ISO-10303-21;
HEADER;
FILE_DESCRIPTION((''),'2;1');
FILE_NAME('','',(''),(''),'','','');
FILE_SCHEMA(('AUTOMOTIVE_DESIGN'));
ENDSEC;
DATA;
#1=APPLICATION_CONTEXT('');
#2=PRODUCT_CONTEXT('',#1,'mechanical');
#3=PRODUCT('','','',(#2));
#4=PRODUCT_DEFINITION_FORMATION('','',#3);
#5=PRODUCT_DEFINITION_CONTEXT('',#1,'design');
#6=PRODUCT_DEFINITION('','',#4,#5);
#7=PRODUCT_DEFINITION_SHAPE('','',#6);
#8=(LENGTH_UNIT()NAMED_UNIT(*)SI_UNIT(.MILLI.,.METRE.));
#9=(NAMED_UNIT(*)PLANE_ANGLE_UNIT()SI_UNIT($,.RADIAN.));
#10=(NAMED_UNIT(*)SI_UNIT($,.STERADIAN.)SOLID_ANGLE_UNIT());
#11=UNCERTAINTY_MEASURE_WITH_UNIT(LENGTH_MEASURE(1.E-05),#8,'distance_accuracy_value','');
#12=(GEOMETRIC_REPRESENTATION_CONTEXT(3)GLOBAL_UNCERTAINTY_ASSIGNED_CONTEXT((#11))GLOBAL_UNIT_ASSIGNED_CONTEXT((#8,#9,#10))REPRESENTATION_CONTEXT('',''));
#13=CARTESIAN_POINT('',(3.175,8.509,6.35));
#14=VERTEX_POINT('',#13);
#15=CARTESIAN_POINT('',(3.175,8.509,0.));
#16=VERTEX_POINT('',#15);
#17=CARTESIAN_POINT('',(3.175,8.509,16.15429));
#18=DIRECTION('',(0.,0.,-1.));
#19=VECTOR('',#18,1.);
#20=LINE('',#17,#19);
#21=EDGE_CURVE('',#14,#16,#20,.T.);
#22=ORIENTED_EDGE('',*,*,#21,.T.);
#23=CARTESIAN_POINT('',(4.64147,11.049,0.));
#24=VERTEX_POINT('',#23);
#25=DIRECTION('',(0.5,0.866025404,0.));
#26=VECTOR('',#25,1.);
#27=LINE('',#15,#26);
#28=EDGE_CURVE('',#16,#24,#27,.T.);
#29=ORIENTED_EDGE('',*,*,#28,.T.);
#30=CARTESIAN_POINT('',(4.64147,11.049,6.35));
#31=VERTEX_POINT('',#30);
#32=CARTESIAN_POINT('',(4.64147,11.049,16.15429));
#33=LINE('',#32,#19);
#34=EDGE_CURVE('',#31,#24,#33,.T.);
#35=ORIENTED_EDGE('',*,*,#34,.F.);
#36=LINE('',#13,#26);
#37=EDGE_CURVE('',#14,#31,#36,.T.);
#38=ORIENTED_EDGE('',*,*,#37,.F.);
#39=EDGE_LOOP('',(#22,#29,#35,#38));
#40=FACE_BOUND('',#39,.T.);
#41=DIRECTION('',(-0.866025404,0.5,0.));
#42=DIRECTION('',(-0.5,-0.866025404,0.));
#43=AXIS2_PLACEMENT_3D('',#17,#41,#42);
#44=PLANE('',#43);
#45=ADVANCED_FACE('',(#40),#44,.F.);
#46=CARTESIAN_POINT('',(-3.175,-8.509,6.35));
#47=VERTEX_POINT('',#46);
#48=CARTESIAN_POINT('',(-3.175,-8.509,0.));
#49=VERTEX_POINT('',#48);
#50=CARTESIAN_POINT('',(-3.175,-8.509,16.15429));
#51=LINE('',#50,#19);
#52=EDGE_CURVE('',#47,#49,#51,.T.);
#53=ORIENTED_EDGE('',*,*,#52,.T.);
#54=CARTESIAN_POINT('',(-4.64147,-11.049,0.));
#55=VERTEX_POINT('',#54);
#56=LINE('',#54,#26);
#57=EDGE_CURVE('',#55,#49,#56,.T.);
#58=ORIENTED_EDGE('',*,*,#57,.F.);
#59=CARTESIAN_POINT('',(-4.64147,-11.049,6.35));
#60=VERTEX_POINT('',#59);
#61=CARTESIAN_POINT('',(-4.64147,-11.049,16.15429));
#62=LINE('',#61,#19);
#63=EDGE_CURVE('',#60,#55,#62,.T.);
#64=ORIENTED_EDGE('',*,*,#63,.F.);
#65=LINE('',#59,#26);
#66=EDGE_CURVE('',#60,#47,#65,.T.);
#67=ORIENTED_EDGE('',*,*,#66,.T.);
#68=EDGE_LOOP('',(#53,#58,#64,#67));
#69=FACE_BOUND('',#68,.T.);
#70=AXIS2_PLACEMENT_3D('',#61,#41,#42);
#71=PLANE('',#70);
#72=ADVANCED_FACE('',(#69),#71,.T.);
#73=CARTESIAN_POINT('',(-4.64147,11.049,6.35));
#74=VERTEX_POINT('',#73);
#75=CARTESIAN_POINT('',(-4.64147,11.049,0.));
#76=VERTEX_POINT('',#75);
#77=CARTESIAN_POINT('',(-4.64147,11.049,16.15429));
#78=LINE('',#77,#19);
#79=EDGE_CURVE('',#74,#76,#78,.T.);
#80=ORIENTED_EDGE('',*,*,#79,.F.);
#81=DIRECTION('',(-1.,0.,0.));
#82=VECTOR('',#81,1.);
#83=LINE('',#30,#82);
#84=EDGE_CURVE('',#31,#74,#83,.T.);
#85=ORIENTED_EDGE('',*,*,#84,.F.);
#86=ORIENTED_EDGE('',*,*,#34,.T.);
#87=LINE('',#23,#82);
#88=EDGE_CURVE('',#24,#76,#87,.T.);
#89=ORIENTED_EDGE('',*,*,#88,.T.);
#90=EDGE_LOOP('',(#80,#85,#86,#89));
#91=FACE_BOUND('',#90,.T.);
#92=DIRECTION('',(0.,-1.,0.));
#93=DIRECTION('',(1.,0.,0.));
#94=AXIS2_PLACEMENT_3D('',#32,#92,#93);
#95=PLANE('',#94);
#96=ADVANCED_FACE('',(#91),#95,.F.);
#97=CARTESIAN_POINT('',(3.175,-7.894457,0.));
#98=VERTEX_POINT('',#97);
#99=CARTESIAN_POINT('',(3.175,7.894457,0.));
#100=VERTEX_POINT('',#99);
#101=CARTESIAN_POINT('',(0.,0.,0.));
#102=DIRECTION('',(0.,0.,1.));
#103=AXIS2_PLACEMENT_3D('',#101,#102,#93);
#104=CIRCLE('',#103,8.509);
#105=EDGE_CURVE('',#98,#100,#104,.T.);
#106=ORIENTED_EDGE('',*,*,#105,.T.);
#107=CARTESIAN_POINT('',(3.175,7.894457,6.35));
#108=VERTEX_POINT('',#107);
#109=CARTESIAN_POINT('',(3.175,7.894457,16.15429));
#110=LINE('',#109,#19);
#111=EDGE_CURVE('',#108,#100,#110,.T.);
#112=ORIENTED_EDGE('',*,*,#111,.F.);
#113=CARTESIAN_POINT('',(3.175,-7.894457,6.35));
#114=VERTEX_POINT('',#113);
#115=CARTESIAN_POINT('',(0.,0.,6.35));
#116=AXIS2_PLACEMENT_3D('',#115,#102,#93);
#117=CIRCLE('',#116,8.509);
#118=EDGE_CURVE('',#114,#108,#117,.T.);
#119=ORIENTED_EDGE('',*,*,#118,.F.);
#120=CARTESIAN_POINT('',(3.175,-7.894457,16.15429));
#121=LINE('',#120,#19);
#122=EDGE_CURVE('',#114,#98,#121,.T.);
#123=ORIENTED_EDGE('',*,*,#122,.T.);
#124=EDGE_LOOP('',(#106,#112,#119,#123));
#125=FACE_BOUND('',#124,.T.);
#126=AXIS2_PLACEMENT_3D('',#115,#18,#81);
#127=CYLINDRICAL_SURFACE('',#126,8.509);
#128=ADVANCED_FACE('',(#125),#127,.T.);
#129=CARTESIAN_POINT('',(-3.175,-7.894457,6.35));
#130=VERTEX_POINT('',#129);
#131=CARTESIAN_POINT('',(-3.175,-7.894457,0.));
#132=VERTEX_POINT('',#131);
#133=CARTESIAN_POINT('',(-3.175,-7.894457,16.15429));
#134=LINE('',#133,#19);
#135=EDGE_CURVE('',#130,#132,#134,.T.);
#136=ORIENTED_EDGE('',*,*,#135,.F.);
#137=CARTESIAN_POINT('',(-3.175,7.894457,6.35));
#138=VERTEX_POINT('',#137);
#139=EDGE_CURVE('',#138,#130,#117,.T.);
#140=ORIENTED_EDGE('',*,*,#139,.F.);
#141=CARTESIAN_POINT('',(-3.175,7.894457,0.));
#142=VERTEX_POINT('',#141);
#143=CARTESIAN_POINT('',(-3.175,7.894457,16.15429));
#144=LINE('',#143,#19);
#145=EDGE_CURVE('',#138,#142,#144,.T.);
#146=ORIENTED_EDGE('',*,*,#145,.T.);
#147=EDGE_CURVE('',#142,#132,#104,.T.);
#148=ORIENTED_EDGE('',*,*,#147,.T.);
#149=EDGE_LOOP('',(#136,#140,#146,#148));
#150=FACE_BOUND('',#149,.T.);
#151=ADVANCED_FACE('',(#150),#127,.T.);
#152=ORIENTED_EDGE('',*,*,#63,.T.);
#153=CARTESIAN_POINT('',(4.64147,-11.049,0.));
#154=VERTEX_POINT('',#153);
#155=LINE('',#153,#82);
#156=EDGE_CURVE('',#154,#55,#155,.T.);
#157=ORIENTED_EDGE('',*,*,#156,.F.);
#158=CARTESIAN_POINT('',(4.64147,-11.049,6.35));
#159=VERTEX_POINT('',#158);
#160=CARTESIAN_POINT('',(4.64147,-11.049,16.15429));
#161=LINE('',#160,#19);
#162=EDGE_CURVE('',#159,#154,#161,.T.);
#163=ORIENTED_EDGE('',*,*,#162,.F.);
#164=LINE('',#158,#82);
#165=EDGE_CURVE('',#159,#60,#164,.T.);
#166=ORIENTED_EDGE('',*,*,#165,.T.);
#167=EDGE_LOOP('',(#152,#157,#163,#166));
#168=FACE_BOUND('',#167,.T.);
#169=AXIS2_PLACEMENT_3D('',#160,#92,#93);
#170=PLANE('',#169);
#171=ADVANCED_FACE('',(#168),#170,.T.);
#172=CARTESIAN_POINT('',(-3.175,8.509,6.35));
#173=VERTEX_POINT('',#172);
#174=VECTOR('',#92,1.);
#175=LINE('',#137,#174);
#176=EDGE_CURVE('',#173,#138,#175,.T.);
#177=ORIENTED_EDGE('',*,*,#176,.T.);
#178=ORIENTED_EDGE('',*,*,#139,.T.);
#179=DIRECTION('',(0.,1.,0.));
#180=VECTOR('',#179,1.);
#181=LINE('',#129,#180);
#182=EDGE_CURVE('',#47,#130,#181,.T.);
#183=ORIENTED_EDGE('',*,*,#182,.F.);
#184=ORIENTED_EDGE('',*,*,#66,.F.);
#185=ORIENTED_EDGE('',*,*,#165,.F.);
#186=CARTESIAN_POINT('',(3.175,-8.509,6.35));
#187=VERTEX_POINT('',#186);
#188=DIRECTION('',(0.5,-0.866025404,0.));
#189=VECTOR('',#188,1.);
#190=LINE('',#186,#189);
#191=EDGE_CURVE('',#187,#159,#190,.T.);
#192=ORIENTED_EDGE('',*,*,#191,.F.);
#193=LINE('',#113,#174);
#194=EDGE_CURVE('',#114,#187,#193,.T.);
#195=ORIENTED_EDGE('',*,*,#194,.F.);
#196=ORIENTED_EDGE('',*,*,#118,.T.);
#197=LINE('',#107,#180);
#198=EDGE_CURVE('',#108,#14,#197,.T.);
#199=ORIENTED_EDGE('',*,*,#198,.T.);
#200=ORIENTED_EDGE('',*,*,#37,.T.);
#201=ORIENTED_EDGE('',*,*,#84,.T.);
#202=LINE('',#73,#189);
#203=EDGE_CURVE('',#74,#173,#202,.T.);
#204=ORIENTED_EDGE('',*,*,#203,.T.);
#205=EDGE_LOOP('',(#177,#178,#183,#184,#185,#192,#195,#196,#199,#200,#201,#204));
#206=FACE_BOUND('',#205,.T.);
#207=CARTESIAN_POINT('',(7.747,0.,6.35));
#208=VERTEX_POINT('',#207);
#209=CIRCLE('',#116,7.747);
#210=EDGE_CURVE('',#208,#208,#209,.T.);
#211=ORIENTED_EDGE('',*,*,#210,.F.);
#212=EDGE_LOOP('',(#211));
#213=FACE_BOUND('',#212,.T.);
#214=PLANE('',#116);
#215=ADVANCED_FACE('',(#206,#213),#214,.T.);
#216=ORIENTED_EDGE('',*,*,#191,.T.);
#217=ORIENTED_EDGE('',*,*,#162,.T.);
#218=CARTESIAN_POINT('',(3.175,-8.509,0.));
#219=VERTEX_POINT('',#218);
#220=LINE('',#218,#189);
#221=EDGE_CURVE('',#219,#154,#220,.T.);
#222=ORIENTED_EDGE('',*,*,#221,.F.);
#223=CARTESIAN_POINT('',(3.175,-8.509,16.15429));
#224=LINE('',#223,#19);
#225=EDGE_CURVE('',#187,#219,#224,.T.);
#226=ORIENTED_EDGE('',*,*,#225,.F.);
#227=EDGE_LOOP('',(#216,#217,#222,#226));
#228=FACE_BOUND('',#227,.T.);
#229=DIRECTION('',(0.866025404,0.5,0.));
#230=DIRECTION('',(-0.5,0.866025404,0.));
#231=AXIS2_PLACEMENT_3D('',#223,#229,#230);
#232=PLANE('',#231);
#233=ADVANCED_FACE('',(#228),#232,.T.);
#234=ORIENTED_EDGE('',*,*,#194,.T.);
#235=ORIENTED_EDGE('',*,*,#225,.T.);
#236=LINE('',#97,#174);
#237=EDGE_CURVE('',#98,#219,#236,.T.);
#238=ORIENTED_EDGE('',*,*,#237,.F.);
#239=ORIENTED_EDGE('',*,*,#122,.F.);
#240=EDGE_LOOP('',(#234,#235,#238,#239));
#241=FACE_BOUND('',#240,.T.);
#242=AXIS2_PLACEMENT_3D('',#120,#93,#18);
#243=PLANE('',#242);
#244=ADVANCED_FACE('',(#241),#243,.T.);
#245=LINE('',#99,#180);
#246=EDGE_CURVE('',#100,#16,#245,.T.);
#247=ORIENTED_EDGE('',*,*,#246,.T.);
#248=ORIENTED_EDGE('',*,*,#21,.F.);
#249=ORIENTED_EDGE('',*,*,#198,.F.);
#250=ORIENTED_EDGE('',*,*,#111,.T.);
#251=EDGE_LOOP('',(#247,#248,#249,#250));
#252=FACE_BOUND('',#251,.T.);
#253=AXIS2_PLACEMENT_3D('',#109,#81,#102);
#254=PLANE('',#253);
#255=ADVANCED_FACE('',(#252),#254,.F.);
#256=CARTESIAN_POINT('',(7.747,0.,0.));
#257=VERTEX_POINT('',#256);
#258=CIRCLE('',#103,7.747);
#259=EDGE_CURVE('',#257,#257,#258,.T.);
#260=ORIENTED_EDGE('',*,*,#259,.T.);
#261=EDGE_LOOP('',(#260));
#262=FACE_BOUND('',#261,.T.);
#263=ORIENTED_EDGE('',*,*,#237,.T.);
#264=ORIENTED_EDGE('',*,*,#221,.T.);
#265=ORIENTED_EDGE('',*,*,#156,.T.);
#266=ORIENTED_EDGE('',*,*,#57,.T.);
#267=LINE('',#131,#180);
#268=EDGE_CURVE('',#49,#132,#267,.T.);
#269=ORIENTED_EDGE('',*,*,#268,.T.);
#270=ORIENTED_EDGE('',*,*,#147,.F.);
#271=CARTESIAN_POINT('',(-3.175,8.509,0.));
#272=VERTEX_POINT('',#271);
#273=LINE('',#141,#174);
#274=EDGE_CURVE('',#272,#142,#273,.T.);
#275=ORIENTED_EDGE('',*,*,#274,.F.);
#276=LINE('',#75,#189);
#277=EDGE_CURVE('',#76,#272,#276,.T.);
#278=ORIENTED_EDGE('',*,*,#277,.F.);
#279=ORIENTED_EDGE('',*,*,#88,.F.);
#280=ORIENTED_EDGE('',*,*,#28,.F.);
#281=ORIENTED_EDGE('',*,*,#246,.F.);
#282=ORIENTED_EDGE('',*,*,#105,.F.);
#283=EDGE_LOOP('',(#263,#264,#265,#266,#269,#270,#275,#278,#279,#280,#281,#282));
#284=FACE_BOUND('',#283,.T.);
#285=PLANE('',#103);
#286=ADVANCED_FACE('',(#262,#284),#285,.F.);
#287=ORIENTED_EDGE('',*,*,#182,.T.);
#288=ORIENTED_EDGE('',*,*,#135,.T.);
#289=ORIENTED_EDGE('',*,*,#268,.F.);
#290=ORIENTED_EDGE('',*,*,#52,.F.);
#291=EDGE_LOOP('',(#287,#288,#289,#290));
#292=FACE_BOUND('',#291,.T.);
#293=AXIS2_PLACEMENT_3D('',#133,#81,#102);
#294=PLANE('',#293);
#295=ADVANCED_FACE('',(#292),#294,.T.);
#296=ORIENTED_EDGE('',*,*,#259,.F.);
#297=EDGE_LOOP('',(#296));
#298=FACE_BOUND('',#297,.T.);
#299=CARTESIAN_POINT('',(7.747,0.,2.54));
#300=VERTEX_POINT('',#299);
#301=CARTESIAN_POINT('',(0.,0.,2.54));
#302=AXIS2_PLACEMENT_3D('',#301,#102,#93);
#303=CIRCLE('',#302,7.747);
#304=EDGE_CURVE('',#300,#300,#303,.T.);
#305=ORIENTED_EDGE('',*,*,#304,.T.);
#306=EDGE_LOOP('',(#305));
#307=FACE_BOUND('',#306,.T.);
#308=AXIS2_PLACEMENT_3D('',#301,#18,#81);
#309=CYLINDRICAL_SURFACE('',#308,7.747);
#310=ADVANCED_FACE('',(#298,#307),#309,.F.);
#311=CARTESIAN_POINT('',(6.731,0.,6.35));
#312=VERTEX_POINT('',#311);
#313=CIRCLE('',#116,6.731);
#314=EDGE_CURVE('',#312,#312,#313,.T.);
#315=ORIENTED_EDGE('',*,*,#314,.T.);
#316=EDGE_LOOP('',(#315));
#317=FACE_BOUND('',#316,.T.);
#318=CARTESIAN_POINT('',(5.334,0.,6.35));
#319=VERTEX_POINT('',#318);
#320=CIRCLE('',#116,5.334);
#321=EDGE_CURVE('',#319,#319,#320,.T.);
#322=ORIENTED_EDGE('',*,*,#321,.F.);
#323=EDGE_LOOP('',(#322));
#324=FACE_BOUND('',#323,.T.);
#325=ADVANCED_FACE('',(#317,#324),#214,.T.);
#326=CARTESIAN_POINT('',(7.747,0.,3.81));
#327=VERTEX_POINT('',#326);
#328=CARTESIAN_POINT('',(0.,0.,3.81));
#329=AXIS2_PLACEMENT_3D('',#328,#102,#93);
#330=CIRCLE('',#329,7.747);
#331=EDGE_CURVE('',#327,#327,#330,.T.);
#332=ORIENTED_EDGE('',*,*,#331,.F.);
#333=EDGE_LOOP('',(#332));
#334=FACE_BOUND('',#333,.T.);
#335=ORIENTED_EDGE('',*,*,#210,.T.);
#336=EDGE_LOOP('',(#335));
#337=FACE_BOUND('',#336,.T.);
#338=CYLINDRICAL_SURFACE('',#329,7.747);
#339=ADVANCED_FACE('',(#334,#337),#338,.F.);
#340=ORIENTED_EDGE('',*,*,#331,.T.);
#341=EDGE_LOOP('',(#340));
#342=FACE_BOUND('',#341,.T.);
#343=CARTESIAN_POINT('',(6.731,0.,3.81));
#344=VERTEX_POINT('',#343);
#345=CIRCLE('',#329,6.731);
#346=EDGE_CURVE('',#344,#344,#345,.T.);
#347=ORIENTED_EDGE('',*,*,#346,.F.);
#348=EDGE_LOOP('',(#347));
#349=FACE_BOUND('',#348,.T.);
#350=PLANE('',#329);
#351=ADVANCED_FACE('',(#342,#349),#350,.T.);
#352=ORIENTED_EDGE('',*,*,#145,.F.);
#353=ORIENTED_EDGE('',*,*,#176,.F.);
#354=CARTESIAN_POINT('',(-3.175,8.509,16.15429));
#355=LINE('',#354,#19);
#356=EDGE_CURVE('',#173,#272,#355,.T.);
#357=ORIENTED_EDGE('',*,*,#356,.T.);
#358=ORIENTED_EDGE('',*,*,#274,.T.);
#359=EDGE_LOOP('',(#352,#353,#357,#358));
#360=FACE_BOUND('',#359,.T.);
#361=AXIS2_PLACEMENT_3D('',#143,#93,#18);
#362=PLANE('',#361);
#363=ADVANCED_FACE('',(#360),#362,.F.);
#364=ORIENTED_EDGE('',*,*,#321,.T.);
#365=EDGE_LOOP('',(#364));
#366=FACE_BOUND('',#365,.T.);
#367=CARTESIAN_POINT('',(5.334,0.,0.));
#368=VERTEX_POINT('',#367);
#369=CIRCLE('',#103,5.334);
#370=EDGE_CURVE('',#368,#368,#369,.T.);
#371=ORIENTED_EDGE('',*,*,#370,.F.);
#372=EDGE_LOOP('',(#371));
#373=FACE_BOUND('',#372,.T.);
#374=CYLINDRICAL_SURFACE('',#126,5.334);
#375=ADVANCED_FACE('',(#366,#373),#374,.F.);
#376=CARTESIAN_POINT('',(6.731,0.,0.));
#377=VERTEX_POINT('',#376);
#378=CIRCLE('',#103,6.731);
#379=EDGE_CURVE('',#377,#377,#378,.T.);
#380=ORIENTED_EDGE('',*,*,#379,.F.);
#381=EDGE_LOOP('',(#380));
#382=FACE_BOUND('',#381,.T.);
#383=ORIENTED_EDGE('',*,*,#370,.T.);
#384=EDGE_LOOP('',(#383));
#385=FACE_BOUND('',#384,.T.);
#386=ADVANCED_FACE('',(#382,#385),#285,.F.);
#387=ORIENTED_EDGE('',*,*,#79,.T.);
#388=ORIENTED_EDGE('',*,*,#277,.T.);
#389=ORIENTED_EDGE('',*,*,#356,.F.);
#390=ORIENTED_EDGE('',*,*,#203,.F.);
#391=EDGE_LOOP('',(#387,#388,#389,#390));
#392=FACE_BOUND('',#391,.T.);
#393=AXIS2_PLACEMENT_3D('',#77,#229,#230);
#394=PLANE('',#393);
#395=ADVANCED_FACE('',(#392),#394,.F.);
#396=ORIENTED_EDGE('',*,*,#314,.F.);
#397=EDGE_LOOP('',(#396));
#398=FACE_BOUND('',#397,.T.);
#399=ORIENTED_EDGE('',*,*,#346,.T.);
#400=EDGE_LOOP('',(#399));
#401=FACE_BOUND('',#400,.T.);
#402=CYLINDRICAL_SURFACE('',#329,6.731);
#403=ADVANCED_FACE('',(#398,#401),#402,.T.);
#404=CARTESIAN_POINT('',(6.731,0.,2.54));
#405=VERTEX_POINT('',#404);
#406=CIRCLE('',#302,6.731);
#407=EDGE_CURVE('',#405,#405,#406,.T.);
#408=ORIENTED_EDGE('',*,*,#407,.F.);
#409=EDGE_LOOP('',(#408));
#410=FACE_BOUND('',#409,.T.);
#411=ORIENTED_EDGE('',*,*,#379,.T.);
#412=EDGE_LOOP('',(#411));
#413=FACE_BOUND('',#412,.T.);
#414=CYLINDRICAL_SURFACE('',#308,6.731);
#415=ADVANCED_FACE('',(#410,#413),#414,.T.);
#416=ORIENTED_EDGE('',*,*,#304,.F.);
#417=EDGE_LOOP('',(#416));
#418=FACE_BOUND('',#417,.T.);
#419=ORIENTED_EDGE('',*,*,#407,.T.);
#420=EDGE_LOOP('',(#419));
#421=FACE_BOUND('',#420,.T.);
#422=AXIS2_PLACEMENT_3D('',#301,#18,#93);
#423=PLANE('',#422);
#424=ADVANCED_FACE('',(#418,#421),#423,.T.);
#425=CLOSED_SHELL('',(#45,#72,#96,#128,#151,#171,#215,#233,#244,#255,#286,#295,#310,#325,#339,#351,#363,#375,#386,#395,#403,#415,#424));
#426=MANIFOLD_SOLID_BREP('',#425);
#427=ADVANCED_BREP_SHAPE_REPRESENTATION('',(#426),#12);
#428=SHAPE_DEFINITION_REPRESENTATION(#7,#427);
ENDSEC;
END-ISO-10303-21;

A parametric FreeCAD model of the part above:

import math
import FreeCAD as App
import Part
import Sketcher
Q = App.Units.Quantity

doc = App.newDocument("Part")
body = doc.addObject("PartDesign::Body", "Body")

# Sketch on XY plane
sketch1 = doc.addObject("Sketcher::SketchObject", "Sketch")
body.addObject(sketch1)
sketch1.AttachmentSupport = (doc.XY_Plane, [""])
sketch1.MapMode = "FlatFace"
sketch1.addGeometry(Part.Circle(App.Vector(0, 0, 0), App.Vector(0, 0, 1), 9), False)
sketch1.addGeometry(Part.Circle(App.Vector(0, 0, 0), App.Vector(0, 0, 1), 5), False)
sketch1.addConstraint(Sketcher.Constraint("Coincident", 0, 3, -1, 1))
sketch1.addConstraint(Sketcher.Constraint("Coincident", 1, 3, -1, 1))
sketch1.addConstraint(Sketcher.Constraint("Diameter", 0, Q("0.67 in")))
sketch1.addConstraint(Sketcher.Constraint("Diameter", 1, Q("0.42 in")))
pad1 = doc.addObject("PartDesign::Pad", "Pad")
body.addObject(pad1)
pad1.Profile = sketch1
pad1.Length = Q("0.25 in")

# Sketch on XY plane
sketch2 = doc.addObject("Sketcher::SketchObject", "Sketch001")
body.addObject(sketch2)
sketch2.AttachmentSupport = (doc.XY_Plane, [""])
sketch2.MapMode = "FlatFace"
sketch2.AttachmentOffset = App.Placement(App.Vector(0, 0, 0.25 * 25.4), App.Rotation())
sketch2.addGeometry(Part.Circle(App.Vector(0, 0, 0), App.Vector(0, 0, 1), 8), False)
sketch2.addGeometry(Part.Circle(App.Vector(0, 0, 0), App.Vector(0, 0, 1), 7), False)
sketch2.addConstraint(Sketcher.Constraint("Coincident", 0, 3, -1, 1))
sketch2.addConstraint(Sketcher.Constraint("Coincident", 1, 3, -1, 1))
sketch2.addConstraint(Sketcher.Constraint("Diameter", 0, Q("0.61 in")))
sketch2.addConstraint(Sketcher.Constraint("Diameter", 1, Q("0.53 in")))
pocket1 = doc.addObject("PartDesign::Pocket", "Pocket")
body.addObject(pocket1)
pocket1.Profile = sketch2
pocket1.Length = Q("0.1 in")

# Sketch on XY plane
sketch3 = doc.addObject("Sketcher::SketchObject", "Sketch002")
body.addObject(sketch3)
sketch3.AttachmentSupport = (doc.XY_Plane, [""])
sketch3.MapMode = "FlatFace"
sketch3.addGeometry(Part.LineSegment(App.Vector(-3.2, 8.5, 0), App.Vector(-3.2, 7.9, 0)), False)
sketch3.addGeometry(Part.ArcOfCircle(Part.Circle(App.Vector(0, 0, 0), App.Vector(0, 0, 1), 8.5), math.radians(68), math.radians(112)), False)
sketch3.addGeometry(Part.LineSegment(App.Vector(3.2, 7.9, 0), App.Vector(3.2, 8.5, 0)), False)
sketch3.addGeometry(Part.LineSegment(App.Vector(3.2, 8.5, 0), App.Vector(4.6, 11, 0)), False)
sketch3.addGeometry(Part.LineSegment(App.Vector(4.6, 11, 0), App.Vector(-4.6, 11, 0)), False)
sketch3.addGeometry(Part.LineSegment(App.Vector(-4.6, 11, 0), App.Vector(-3.2, 8.5, 0)), False)
sketch3.addConstraint(Sketcher.Constraint("Coincident", 0, 2, 1, 2))
sketch3.addConstraint(Sketcher.Constraint("Coincident", 1, 1, 2, 1))
sketch3.addConstraint(Sketcher.Constraint("Coincident", 2, 2, 3, 1))
sketch3.addConstraint(Sketcher.Constraint("Coincident", 3, 2, 4, 1))
sketch3.addConstraint(Sketcher.Constraint("Coincident", 4, 2, 5, 1))
sketch3.addConstraint(Sketcher.Constraint("Coincident", 5, 2, 0, 1))
sketch3.addConstraint(Sketcher.Constraint("Vertical", 0))
sketch3.addConstraint(Sketcher.Constraint("Vertical", 2))
sketch3.addConstraint(Sketcher.Constraint("Horizontal", 4))
sketch3.addConstraint(Sketcher.Constraint("Coincident", 1, 3, -1, 1))
sketch3.addConstraint(Sketcher.Constraint("Symmetric", 2, 2, 5, 2, -2))
sketch3.addConstraint(Sketcher.Constraint("Equal", 3, 5))
sketch3.addConstraint(Sketcher.Constraint("Angle", 3, Q("60 deg")))
sketch3.addConstraint(Sketcher.Constraint("Radius", 1, Q("0.335 in")))
sketch3.addConstraint(Sketcher.Constraint("DistanceY", 2, 2, 3, 2, Q("0.1 in")))
sketch3.addConstraint(Sketcher.Constraint("DistanceX", 0, 2, 1, 1, Q("0.25 in")))
sketch3.addConstraint(Sketcher.Constraint("DistanceY", -1, 1, 2, 2, Q("0.335 in")))
pad2 = doc.addObject("PartDesign::Pad", "Pad001")
body.addObject(pad2)
pad2.Profile = sketch3
pad2.Length = Q("0.25 in")
doc.recompute()

mirrored = doc.addObject("PartDesign::Mirrored", "Mirrored")
body.addObject(mirrored)
mirrored.Originals = [pad2]
mirrored.MirrorPlane = (doc.XZ_Plane, [""])
body.Tip = mirrored
doc.recompute()

datumplane = doc.addObject("PartDesign::Plane", "DatumPlane")
body.addObject(datumplane)
datumplane.AttachmentSupport = (doc.XY_Plane, [""])
datumplane.MapMode = "FlatFace"
datumplane.AttachmentOffset = App.Placement(App.Vector(0, 0, 0.125 * 25.4), App.Rotation())
mirrored2 = doc.addObject("PartDesign::Mirrored", "Mirrored001")
body.addObject(mirrored2)
mirrored2.Originals = [pocket1]
mirrored2.MirrorPlane = (datumplane, [""])
body.Tip = mirrored2

doc.recompute()
